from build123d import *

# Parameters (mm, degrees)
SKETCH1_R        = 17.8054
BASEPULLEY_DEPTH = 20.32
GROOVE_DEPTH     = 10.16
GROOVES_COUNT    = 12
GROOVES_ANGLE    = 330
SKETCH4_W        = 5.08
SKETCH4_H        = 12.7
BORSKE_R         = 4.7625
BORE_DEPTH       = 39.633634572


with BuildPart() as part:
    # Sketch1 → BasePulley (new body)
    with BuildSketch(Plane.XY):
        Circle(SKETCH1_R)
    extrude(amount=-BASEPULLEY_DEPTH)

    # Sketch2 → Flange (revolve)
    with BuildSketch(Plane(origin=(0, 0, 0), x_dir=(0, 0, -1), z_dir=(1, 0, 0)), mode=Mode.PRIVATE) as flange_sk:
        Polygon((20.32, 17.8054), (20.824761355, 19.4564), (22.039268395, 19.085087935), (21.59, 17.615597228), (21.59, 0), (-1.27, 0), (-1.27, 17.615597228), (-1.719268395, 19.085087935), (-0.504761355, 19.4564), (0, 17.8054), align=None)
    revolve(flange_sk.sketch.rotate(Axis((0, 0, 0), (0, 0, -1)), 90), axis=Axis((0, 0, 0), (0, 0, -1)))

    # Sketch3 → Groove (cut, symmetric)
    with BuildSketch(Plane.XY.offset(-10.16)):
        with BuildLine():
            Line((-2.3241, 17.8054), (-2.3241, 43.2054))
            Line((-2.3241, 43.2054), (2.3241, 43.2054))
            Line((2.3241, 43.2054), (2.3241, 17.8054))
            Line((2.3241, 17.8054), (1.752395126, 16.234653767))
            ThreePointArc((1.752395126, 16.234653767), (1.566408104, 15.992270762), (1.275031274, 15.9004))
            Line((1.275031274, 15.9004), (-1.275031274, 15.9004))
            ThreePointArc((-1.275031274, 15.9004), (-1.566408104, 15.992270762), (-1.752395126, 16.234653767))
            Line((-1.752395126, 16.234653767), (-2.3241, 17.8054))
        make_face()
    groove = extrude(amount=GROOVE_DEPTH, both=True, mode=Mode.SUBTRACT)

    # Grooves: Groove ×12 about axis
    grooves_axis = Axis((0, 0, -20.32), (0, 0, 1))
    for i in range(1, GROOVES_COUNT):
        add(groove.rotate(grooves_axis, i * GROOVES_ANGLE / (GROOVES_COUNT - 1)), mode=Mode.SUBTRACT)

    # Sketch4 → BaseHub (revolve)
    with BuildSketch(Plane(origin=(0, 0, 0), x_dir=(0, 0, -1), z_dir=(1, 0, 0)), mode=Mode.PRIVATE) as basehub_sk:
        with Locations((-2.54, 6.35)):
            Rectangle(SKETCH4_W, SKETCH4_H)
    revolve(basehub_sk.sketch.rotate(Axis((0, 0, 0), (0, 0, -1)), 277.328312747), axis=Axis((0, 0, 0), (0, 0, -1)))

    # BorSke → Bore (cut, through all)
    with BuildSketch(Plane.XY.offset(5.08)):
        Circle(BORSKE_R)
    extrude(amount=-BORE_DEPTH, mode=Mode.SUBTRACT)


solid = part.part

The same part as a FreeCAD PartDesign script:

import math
import FreeCAD as App
import Part
import Sketcher
from FreeCAD import Vector
Q = App.Units.Quantity


def add_polygon(sketch, points):
    """Adds a closed chain of lines whose ends are joined by coincident constraints."""
    first, n = sketch.GeometryCount, len(points)
    for a, b in zip(points, points[1:] + points[:1]):
        sketch.addGeometry(Part.LineSegment(App.Vector(*a, 0), App.Vector(*b, 0)), False)
    for i in range(n):
        sketch.addConstraint(Sketcher.Constraint("Coincident", first + i, 2, first + (i + 1) % n, 1))

doc = App.newDocument("Part")
body = doc.addObject("PartDesign::Body", "Body")

sketch1 = body.newObject("Sketcher::SketchObject", "Sketch")
sketch1.AttachmentSupport = (doc.getObject("XY_Plane"), [""])
sketch1.MapMode = "FlatFace"
sketch1.addGeometry(Part.Circle(Vector(0, 0, 0), Vector(0, 0, 1), 18), False)
sketch1.addConstraint(Sketcher.Constraint("Coincident", 0, 3, -1, 1))
sketch1.addConstraint(Sketcher.Constraint("Diameter", 0, Q("1.402 in")))
pad1 = body.newObject("PartDesign::Pad", "Pad")
pad1.Profile = sketch1
pad1.Length = Q("0.8 in")
pad1.Reversed = True

sketch2 = body.newObject("Sketcher::SketchObject", "Sketch001")
sketch2.AttachmentSupport = (doc.getObject("YZ_Plane"), [""])
sketch2.MapMode = "FlatFace"
add_polygon(sketch2, [(19.5, -20.8), (17.8, -20.3), (17.8, 0), (19.5, 0.5), (19.1, 1.7), (17.6, 1.3), (0, 1.3), (0, -21.6), (17.6, -21.6), (19.1, -22)])
sketch2.addConstraint(Sketcher.Constraint("Vertical", 1))
sketch2.addConstraint(Sketcher.Constraint("Horizontal", 5))
sketch2.addConstraint(Sketcher.Constraint("Vertical", 6))
sketch2.addConstraint(Sketcher.Constraint("Horizontal", 7))
sketch2.addConstraint(Sketcher.Constraint("PointOnObject", 1, 2, -1))
sketch2.addConstraint(Sketcher.Constraint("PointOnObject", 5, 2, -2))
sketch2.addConstraint(Sketcher.Constraint("Perpendicular", 2, 3))
sketch2.addConstraint(Sketcher.Constraint("Perpendicular", 3, 4))
sketch2.addConstraint(Sketcher.Constraint("Parallel", 0, 8))
sketch2.addConstraint(Sketcher.Constraint("Perpendicular", 8, 9))
sketch2.addConstraint(Sketcher.Constraint("Vertical", 4, 2, 7, 2))
sketch2.addConstraint(Sketcher.Constraint("Vertical", 3, 2, 8, 2))
sketch2.addConstraint(Sketcher.Constraint("Vertical", 2, 2, 9, 2))
sketch2.addConstraint(Sketcher.Constraint("Equal", 0, 2))
sketch2.addConstraint(Sketcher.Constraint("DistanceY", 1, 1, 1, 2, Q("0.8 in")))
sketch2.addConstraint(Sketcher.Constraint("DistanceY", 6, 2, 6, 1, Q("0.9 in")))
sketch2.addConstraint(Sketcher.Constraint("Angle", 0, Q("163 deg")))
sketch2.addConstraint(Sketcher.Constraint("Distance", 3, Q("0.05 in")))
sketch2.addConstraint(Sketcher.Constraint("DistanceX", -1, 1, 0, 2, Q("0.701 in")))
sketch2.addConstraint(Sketcher.Constraint("DistanceX", -1, 1, 2, 2, Q("0.766 in")))
revolution = body.newObject("PartDesign::Revolution", "Revolution")
revolution.Profile = sketch2
revolution.ReferenceAxis = (sketch2, ["V_Axis"])
revolution.Angle = 360

sketch3 = body.newObject("Sketcher::SketchObject", "Sketch002")
sketch3.AttachmentSupport = (doc.getObject("XY_Plane"), [""])
sketch3.MapMode = "FlatFace"
sketch3.AttachmentOffset = App.Placement(Vector(0, 0, -0.4 * 25.4), App.Rotation())
sketch3.addGeometry(Part.LineSegment(Vector(-2.3, 43.2, 0), Vector(-2.3, 17.8, 0)), False)
sketch3.addGeometry(Part.LineSegment(Vector(-2.3, 17.8, 0), Vector(-1.8, 16.2, 0)), False)
sketch3.addGeometry(Part.ArcOfCircle(Part.Circle(Vector(-1.3, 16.4, 0), Vector(0, 0, 1), 0.5), math.radians(-160), math.radians(-90)), False)
sketch3.addGeometry(Part.LineSegment(Vector(-1.3, 15.9, 0), Vector(1.3, 15.9, 0)), False)
sketch3.addGeometry(Part.ArcOfCircle(Part.Circle(Vector(1.3, 16.4, 0), Vector(0, 0, 1), 0.5), math.radians(-90), math.radians(-20)), False)
sketch3.addGeometry(Part.LineSegment(Vector(1.8, 16.2, 0), Vector(2.3, 17.8, 0)), False)
sketch3.addGeometry(Part.LineSegment(Vector(2.3, 17.8, 0), Vector(2.3, 43.2, 0)), False)
sketch3.addGeometry(Part.LineSegment(Vector(2.3, 43.2, 0), Vector(-2.3, 43.2, 0)), False)
sketch3.addConstraint(Sketcher.Constraint("Coincident", 0, 2, 1, 1))
sketch3.addConstraint(Sketcher.Constraint("Tangent", 1, 2, 2, 1))
sketch3.addConstraint(Sketcher.Constraint("Tangent", 2, 2, 3, 1))
sketch3.addConstraint(Sketcher.Constraint("Tangent", 3, 2, 4, 1))
sketch3.addConstraint(Sketcher.Constraint("Tangent", 4, 2, 5, 1))
sketch3.addConstraint(Sketcher.Constraint("Coincident", 5, 2, 6, 1))
sketch3.addConstraint(Sketcher.Constraint("Coincident", 6, 2, 7, 1))
sketch3.addConstraint(Sketcher.Constraint("Coincident", 7, 2, 0, 1))
sketch3.addConstraint(Sketcher.Constraint("Vertical", 0))
sketch3.addConstraint(Sketcher.Constraint("Horizontal", 3))
sketch3.addConstraint(Sketcher.Constraint("Vertical", 6))
sketch3.addConstraint(Sketcher.Constraint("Horizontal", 7))
sketch3.addConstraint(Sketcher.Constraint("Equal", 2, 4))
sketch3.addConstraint(Sketcher.Constraint("Symmetric", 1, 2, 4, 2, -2))
sketch3.addConstraint(Sketcher.Constraint("Horizontal", 0, 2, 5, 2))
sketch3.addConstraint(Sketcher.Constraint("DistanceY", 0, 2, 0, 1, Q("1 in")))
sketch3.addConstraint(Sketcher.Constraint("Radius", 2, Q("0.02 in")))
sketch3.addConstraint(Sketcher.Constraint("Angle", 1, Q("-70 deg")))
sketch3.addConstraint(Sketcher.Constraint("DistanceX", 7, 2, 7, 1, Q("0.183 in")))
sketch3.addConstraint(Sketcher.Constraint("DistanceY", -1, 1, 2, 3, Q("0.646 in")))
sketch3.addConstraint(Sketcher.Constraint("DistanceY", -1, 1, 0, 2, Q("0.701 in")))
pocket1 = body.newObject("PartDesign::Pocket", "Pocket")
pocket1.Profile = sketch3
pocket1.Length = Q("0.8 in")
pocket1.Midplane = True
doc.recompute()

polarpattern = body.newObject("PartDesign::PolarPattern", "PolarPattern")
polarpattern.Originals = [pocket1]
polarpattern.Axis = (doc.getObject("Z_Axis"), [""])
polarpattern.Angle = 360
polarpattern.Occurrences = 12
body.Tip = polarpattern

sketch4 = body.newObject("Sketcher::SketchObject", "Sketch003")
sketch4.AttachmentSupport = (doc.getObject("YZ_Plane"), [""])
sketch4.MapMode = "FlatFace"
add_polygon(sketch4, [(13, 5), (0, 5), (0, 0), (13, 0)])
sketch4.addConstraint(Sketcher.Constraint("Horizontal", 0))
sketch4.addConstraint(Sketcher.Constraint("Vertical", 1))
sketch4.addConstraint(Sketcher.Constraint("Horizontal", 2))
sketch4.addConstraint(Sketcher.Constraint("Vertical", 3))
sketch4.addConstraint(Sketcher.Constraint("Coincident", 1, 2, -1, 1))
sketch4.addConstraint(Sketcher.Constraint("DistanceX", 0, 2, 0, 1, Q("0.5 in")))
sketch4.addConstraint(Sketcher.Constraint("DistanceY", 1, 2, 1, 1, Q("0.2 in")))
revolution2 = body.newObject("PartDesign::Revolution", "Revolution001")
revolution2.Profile = sketch4
revolution2.ReferenceAxis = (sketch4, ["V_Axis"])
revolution2.Angle = 360

sketch5 = body.newObject("Sketcher::SketchObject", "Sketch004")
sketch5.AttachmentSupport = (doc.getObject("XY_Plane"), [""])
sketch5.MapMode = "FlatFace"
sketch5.AttachmentOffset = App.Placement(Vector(0, 0, 0.2 * 25.4), App.Rotation())
sketch5.addGeometry(Part.Circle(Vector(0, 0, 0), Vector(0, 0, 1), 4.8), False)
sketch5.addConstraint(Sketcher.Constraint("Coincident", 0, 3, -1, 1))
sketch5.addConstraint(Sketcher.Constraint("Diameter", 0, Q("0.375 in")))
pocket2 = body.newObject("PartDesign::Pocket", "Pocket001")
pocket2.Profile = sketch5
pocket2.Type = "ThroughAll"

doc.recompute()
